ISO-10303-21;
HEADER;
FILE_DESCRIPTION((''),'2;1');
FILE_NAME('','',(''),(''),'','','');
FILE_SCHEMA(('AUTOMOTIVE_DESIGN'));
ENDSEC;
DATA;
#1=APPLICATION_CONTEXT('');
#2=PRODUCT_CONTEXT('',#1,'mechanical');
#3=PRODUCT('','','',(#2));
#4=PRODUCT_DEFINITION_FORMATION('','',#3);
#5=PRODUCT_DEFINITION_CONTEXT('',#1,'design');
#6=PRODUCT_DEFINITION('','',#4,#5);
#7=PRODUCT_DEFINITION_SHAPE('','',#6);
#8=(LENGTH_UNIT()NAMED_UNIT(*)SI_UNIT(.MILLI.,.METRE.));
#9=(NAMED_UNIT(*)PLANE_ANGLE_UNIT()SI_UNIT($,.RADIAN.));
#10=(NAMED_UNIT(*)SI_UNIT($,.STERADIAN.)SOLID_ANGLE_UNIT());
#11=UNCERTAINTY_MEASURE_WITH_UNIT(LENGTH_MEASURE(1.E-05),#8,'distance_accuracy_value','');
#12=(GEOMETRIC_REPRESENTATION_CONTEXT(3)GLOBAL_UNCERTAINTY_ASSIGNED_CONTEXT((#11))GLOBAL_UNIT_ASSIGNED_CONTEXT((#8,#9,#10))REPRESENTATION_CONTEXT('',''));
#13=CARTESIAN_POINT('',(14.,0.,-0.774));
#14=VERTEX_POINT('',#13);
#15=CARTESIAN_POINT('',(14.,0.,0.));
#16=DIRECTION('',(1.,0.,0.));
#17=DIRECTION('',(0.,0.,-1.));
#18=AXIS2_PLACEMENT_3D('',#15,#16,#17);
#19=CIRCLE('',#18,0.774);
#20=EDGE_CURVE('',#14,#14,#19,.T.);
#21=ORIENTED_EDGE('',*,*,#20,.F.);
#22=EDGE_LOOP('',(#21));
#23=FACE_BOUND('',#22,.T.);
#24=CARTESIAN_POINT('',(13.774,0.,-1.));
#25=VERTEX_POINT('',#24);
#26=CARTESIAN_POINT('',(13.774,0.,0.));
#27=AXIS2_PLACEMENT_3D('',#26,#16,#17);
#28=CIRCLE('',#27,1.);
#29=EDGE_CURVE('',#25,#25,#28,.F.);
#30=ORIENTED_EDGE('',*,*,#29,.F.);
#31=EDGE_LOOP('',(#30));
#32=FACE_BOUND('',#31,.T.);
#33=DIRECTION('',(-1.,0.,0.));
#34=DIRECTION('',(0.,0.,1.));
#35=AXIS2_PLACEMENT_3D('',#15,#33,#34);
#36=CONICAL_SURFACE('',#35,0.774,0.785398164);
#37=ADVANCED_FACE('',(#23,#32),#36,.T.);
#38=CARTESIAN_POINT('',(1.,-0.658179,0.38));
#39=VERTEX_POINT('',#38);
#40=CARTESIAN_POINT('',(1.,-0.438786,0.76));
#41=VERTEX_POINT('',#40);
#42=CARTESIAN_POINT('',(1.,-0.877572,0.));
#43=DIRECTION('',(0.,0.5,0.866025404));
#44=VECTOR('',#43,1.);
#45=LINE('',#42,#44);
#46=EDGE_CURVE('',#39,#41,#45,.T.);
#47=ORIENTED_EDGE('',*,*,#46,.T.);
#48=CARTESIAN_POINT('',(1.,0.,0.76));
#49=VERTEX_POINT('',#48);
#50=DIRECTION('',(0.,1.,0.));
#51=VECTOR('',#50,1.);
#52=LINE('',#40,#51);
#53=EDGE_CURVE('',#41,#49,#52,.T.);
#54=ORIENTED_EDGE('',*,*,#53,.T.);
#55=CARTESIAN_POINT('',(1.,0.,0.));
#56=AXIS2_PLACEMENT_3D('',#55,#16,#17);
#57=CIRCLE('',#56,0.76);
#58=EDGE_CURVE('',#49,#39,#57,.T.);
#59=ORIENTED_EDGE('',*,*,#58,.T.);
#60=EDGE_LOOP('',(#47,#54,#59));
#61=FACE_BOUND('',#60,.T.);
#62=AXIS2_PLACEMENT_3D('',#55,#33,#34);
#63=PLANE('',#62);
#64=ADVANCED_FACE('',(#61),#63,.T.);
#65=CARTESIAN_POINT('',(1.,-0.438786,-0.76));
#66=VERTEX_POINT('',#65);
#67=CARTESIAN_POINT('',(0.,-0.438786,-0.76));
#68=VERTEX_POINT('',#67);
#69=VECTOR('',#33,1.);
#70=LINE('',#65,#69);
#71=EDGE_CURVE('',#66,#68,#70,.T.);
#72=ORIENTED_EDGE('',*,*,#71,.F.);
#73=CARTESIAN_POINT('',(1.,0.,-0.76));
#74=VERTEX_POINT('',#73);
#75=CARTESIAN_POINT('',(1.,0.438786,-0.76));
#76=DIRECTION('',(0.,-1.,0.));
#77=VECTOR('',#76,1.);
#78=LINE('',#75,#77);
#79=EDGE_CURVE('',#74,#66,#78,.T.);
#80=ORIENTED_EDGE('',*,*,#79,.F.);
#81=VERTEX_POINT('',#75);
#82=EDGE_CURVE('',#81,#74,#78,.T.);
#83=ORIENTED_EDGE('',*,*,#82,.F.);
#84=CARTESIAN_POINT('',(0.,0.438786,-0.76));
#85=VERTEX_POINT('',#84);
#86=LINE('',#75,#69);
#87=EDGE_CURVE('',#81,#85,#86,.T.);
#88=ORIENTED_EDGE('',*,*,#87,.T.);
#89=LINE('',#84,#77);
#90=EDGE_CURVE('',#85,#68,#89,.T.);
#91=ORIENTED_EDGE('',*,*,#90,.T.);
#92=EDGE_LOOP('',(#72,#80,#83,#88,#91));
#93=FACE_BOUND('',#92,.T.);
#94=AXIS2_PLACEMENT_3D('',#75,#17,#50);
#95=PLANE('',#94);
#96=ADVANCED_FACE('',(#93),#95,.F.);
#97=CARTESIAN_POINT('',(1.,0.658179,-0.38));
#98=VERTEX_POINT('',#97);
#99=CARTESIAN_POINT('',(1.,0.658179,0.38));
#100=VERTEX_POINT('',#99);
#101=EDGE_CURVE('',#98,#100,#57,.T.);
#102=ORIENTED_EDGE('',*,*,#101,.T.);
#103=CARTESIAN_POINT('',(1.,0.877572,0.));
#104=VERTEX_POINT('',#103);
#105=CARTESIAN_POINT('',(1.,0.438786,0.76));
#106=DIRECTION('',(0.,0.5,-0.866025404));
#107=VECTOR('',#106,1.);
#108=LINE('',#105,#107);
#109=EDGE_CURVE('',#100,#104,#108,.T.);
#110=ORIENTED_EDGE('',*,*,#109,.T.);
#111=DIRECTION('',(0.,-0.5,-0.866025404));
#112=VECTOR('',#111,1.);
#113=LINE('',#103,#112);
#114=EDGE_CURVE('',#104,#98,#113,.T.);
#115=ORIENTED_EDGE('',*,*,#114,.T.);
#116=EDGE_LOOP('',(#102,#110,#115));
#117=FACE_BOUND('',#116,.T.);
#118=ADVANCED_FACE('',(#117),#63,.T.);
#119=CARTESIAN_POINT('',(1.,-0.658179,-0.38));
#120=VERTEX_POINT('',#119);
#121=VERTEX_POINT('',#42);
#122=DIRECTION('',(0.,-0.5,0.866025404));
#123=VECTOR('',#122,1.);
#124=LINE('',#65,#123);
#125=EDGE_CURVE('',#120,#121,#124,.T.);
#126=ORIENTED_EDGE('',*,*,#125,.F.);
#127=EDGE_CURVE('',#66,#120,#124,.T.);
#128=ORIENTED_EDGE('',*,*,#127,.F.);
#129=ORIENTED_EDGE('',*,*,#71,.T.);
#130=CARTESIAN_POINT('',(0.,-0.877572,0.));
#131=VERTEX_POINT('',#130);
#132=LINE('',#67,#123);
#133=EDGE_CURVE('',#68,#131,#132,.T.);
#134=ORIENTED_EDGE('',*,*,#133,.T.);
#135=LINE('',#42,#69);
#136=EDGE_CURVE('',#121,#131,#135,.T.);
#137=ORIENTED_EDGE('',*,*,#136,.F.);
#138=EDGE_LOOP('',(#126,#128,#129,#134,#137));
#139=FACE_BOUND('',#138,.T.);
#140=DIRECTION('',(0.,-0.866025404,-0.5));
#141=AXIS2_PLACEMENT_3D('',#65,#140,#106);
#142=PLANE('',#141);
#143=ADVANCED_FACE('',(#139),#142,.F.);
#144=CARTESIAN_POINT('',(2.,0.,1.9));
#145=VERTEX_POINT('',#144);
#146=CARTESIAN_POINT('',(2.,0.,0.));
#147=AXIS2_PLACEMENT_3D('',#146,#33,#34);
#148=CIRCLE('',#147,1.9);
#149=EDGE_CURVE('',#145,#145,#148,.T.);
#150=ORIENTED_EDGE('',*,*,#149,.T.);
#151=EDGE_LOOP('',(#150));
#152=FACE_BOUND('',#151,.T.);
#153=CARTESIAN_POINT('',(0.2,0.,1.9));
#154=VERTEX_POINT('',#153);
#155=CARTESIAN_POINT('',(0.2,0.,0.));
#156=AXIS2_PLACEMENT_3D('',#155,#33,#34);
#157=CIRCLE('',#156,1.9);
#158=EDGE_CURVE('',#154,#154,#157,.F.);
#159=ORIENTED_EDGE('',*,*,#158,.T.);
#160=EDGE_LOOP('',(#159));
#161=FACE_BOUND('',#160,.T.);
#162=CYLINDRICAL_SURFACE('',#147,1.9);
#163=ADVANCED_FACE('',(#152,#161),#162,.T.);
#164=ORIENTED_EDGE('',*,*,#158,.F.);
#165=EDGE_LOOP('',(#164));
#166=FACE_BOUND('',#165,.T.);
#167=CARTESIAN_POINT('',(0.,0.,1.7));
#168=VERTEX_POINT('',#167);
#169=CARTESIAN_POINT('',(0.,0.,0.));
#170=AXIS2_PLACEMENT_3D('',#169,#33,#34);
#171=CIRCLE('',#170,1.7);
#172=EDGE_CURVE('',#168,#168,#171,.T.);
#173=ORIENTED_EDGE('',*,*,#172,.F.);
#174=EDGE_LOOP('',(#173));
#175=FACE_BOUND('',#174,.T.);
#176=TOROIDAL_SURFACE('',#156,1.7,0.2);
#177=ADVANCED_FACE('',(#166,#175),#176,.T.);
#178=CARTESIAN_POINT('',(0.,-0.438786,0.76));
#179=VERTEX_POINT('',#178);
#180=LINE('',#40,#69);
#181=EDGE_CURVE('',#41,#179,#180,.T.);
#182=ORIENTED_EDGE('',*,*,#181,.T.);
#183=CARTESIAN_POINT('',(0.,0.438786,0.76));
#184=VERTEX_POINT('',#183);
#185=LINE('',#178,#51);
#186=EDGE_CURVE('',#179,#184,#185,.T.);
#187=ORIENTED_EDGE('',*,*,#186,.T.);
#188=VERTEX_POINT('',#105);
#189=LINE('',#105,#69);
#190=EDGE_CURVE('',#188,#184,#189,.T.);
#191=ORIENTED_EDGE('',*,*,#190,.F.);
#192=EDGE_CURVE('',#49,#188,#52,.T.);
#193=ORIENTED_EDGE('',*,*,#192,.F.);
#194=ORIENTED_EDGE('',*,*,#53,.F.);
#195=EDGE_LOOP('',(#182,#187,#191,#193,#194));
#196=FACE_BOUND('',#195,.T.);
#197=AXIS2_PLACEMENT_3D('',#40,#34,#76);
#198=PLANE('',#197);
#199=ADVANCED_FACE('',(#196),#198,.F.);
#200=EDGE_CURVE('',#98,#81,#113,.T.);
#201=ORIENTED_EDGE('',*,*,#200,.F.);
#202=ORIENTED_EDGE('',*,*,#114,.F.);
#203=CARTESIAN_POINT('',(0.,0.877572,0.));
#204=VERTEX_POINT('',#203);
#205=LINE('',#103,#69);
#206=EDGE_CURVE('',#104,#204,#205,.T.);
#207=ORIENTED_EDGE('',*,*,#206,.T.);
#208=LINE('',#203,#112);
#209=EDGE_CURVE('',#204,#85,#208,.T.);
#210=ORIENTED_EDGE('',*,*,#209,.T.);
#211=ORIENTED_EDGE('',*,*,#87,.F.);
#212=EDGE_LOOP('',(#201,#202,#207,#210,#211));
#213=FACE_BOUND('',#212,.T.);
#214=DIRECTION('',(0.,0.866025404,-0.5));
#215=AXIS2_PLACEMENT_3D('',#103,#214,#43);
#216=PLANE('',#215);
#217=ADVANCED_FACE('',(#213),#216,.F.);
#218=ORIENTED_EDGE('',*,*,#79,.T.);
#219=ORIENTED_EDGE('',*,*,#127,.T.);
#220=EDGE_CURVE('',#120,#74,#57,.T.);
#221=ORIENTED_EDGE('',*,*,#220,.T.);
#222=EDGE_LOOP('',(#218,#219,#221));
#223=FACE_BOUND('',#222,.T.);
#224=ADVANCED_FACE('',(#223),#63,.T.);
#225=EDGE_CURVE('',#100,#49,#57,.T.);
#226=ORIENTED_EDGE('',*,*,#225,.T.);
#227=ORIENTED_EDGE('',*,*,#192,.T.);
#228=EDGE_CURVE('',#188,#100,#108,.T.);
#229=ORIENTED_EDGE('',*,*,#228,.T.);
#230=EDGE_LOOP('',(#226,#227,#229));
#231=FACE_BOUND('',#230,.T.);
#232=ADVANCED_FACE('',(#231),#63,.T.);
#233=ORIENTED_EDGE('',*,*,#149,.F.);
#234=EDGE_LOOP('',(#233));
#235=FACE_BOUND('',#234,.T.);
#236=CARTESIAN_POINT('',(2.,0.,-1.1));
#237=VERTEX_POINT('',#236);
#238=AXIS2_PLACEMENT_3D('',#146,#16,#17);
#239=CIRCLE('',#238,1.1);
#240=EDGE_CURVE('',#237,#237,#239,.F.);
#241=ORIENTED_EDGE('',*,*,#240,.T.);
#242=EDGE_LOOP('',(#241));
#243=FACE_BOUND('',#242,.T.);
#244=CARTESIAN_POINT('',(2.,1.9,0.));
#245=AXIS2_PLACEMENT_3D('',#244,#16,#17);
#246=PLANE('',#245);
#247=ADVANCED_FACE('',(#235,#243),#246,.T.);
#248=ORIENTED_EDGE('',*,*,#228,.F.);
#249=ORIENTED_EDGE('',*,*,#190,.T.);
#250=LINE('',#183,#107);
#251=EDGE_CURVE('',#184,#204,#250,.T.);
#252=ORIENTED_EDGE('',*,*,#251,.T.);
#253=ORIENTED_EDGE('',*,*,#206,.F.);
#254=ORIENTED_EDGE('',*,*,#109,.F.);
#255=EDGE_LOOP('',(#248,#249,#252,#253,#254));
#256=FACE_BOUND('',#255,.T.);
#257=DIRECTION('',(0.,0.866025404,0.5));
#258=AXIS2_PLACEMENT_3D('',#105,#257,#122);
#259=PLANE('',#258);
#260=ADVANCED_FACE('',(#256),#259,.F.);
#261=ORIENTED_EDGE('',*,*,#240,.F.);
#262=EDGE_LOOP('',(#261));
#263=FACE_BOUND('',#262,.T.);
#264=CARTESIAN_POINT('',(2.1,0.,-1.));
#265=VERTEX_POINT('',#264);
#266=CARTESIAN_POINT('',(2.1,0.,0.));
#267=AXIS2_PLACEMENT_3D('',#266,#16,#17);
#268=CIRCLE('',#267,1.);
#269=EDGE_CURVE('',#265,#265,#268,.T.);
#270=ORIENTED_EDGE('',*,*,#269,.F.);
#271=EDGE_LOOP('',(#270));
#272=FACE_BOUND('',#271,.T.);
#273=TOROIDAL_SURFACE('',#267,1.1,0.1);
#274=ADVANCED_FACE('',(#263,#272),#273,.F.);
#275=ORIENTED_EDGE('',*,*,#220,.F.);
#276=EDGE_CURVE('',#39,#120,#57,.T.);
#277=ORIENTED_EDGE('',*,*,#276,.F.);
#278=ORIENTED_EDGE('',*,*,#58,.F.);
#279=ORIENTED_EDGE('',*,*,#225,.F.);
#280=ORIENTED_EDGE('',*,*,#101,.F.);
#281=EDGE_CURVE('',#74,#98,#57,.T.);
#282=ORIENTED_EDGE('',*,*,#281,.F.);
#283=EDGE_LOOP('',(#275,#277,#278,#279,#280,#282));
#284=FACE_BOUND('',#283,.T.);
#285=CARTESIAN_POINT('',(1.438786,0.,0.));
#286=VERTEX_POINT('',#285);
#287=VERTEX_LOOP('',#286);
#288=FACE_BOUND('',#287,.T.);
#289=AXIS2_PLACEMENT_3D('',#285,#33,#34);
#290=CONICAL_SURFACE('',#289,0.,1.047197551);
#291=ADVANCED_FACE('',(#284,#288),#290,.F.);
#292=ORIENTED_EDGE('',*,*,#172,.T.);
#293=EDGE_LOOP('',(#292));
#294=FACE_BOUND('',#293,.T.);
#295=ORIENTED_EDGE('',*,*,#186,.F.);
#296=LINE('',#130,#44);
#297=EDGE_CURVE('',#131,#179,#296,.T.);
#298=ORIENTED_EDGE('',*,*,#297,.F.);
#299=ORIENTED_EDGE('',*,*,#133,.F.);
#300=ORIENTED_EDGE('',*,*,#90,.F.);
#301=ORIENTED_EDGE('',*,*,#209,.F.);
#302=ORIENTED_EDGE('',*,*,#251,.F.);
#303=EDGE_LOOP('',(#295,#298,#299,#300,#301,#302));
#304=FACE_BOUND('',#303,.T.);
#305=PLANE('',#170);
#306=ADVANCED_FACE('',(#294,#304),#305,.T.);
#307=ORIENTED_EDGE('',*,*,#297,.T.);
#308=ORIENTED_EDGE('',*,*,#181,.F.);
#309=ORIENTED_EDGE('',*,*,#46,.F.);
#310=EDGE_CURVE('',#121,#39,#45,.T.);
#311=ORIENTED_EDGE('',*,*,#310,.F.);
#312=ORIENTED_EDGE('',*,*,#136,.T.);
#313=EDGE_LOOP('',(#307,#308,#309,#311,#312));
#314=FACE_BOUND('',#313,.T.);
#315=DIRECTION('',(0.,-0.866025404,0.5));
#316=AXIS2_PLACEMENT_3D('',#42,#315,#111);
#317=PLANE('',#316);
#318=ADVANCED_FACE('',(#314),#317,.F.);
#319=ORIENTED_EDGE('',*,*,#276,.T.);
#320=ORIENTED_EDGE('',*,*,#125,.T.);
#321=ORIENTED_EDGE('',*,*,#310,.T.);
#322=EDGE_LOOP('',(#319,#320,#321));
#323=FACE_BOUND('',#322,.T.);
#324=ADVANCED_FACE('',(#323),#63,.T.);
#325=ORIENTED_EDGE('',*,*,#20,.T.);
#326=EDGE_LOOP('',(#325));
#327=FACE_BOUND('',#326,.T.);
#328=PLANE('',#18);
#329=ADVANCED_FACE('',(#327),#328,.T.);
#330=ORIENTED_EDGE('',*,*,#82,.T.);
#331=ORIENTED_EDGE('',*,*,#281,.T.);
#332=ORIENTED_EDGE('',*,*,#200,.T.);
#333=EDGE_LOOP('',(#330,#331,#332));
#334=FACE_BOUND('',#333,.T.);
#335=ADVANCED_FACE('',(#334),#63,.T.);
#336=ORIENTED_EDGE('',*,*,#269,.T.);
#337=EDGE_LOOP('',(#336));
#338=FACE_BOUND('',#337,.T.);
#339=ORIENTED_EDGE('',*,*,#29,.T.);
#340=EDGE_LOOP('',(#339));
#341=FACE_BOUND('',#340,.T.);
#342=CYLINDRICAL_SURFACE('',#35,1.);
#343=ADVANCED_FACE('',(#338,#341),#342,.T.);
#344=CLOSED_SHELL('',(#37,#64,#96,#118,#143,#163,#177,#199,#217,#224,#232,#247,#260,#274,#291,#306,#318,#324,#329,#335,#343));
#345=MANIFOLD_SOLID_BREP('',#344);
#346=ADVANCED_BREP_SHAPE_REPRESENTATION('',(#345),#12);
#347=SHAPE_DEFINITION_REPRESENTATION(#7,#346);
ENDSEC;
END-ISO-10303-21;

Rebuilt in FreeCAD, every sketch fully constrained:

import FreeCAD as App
import Part
import Sketcher

V = App.Vector
Q = App.Units.Quantity


def edges_at(feature, points):
    """Names of the edges that pass closest to the given points."""
    edges = feature.Shape.Edges
    near = lambda p: min(range(len(edges)), key=lambda i: edges[i].distToShape(Part.Vertex(*p))[0])
    return sorted({f"Edge{near(p) + 1}" for p in points})


def add_polygon(sketch, points):
    """Adds a closed chain of lines whose ends are joined by coincident constraints."""
    first, n = sketch.GeometryCount, len(points)
    for a, b in zip(points, points[1:] + points[:1]):
        sketch.addGeometry(Part.LineSegment(App.Vector(*a, 0), App.Vector(*b, 0)), False)
    for i in range(n):
        sketch.addConstraint(Sketcher.Constraint("Coincident", first + i, 2, first + (i + 1) % n, 1))

doc = App.newDocument("Part")
body = doc.addObject("PartDesign::Body", "Body")

# Sketch on XY plane
sketch1 = body.newObject("Sketcher::SketchObject", "Sketch")
sketch1.AttachmentSupport = (doc.getObject("XY_Plane"), [""])
sketch1.MapMode = "FlatFace"
add_polygon(sketch1, [(2, 1.9), (2, 0), (0, 0), (0, 1.9)])  # lines 0-3
sketch1.addConstraint([
    Sketcher.Constraint("Vertical", 0),
    Sketcher.Constraint("Horizontal", 1),
    Sketcher.Constraint("Vertical", 2),
    Sketcher.Constraint("Horizontal", 3),
    Sketcher.Constraint("Coincident", 1, 2, -1, 1),
    Sketcher.Constraint("DistanceX", 1, 2, 1, 1, Q("2 mm")),
    Sketcher.Constraint("DistanceY", 0, 2, 0, 1, Q("1.9 mm")),
])
revolution = body.newObject("PartDesign::Revolution", "Revolution")
revolution.Profile = sketch1
revolution.ReferenceAxis = (sketch1, ["H_Axis"])
revolution.Angle = 360

# Sketch on YZ plane
sketch2 = body.newObject("Sketcher::SketchObject", "Sketch001")
sketch2.AttachmentSupport = (doc.getObject("YZ_Plane"), [""])
sketch2.MapMode = "FlatFace"
sketch2.AttachmentOffset = App.Placement(V(0, 0, 2), App.Rotation())
sketch2.addGeometry(Part.Circle(V(0, 0, 0), V(0, 0, 1), 1), False)
sketch2.addConstraint([
    Sketcher.Constraint("Coincident", 0, 3, -1, 1),
    Sketcher.Constraint("Diameter", 0, Q("2 mm")),
])
pad1 = body.newObject("PartDesign::Pad", "Pad")
pad1.Profile = sketch2
pad1.Length = 12

# Sketch on YZ plane
sketch3 = body.newObject("Sketcher::SketchObject", "Sketch002")
sketch3.AttachmentSupport = (doc.getObject("YZ_Plane"), [""])
sketch3.MapMode = "FlatFace"
add_polygon(sketch3, [(-0.438786, -0.76), (-0.877572, 0), (-0.438786, 0.76), (0.438786, 0.76), (0.877572, 0), (0.438786, -0.76)])  # lines 0-5
sketch3.addConstraint([
    Sketcher.Constraint("Horizontal", 2),
    Sketcher.Constraint("Horizontal", 5),
    Sketcher.Constraint("Symmetric", 0, 2, 3, 2, -1, 1),
    Sketcher.Constraint("Symmetric", 1, 2, 4, 2, -1, 1),
    Sketcher.Constraint("PointOnObject", 0, 2, -1),
    Sketcher.Constraint("Parallel", 0, 3),
    Sketcher.Constraint("Vertical", 2, 2, 4, 2),
    Sketcher.Constraint("Angle", 0, Q("120 deg")),
    Sketcher.Constraint("DistanceY", -1, 1, 1, 2, Q("0.76 mm")),
    Sketcher.Constraint("DistanceX", 2, 1, 2, 2, Q("0.877572 mm")),
])
pocket1 = body.newObject("PartDesign::Pocket", "Pocket")
pocket1.Profile = sketch3
pocket1.Length = 1
pocket1.Reversed = True

# Sketch on XY plane
sketch4 = body.newObject("Sketcher::SketchObject", "Sketch003")
sketch4.AttachmentSupport = (doc.getObject("XY_Plane"), [""])
sketch4.MapMode = "FlatFace"
add_polygon(sketch4, [(1, 0.76), (1, 0), (1.438786, 0)])  # lines 0-2
sketch4.addConstraint([
    Sketcher.Constraint("Vertical", 0),
    Sketcher.Constraint("Horizontal", 1),
    Sketcher.Constraint("PointOnObject", 0, 2, -1),
    Sketcher.Constraint("Angle", 2, Q("120 deg")),
    Sketcher.Constraint("DistanceX", -1, 1, 0, 2, Q("1 mm")),
    Sketcher.Constraint("DistanceY", 0, 2, 0, 1, Q("0.76 mm")),
])
groove = body.newObject("PartDesign::Groove", "Groove")
groove.Profile = sketch4
groove.ReferenceAxis = (sketch4, ["H_Axis"])
groove.Angle = 360
doc.recompute()

chamfer = body.newObject("PartDesign::Chamfer", "Chamfer")
chamfer.Base = (groove, edges_at(groove, [(14, 0, 1)]))
chamfer.Size = 0.226
doc.recompute()

fillet = body.newObject("PartDesign::Fillet", "Fillet")
fillet.Base = (chamfer, edges_at(chamfer, [(2, 0, 1)]))
fillet.Radius = 0.1
doc.recompute()

fillet2 = body.newObject("PartDesign::Fillet", "Fillet001")
fillet2.Base = (fillet, edges_at(fillet, [(0, 0, -1.9)]))
fillet2.Radius = 0.2

doc.recompute()
